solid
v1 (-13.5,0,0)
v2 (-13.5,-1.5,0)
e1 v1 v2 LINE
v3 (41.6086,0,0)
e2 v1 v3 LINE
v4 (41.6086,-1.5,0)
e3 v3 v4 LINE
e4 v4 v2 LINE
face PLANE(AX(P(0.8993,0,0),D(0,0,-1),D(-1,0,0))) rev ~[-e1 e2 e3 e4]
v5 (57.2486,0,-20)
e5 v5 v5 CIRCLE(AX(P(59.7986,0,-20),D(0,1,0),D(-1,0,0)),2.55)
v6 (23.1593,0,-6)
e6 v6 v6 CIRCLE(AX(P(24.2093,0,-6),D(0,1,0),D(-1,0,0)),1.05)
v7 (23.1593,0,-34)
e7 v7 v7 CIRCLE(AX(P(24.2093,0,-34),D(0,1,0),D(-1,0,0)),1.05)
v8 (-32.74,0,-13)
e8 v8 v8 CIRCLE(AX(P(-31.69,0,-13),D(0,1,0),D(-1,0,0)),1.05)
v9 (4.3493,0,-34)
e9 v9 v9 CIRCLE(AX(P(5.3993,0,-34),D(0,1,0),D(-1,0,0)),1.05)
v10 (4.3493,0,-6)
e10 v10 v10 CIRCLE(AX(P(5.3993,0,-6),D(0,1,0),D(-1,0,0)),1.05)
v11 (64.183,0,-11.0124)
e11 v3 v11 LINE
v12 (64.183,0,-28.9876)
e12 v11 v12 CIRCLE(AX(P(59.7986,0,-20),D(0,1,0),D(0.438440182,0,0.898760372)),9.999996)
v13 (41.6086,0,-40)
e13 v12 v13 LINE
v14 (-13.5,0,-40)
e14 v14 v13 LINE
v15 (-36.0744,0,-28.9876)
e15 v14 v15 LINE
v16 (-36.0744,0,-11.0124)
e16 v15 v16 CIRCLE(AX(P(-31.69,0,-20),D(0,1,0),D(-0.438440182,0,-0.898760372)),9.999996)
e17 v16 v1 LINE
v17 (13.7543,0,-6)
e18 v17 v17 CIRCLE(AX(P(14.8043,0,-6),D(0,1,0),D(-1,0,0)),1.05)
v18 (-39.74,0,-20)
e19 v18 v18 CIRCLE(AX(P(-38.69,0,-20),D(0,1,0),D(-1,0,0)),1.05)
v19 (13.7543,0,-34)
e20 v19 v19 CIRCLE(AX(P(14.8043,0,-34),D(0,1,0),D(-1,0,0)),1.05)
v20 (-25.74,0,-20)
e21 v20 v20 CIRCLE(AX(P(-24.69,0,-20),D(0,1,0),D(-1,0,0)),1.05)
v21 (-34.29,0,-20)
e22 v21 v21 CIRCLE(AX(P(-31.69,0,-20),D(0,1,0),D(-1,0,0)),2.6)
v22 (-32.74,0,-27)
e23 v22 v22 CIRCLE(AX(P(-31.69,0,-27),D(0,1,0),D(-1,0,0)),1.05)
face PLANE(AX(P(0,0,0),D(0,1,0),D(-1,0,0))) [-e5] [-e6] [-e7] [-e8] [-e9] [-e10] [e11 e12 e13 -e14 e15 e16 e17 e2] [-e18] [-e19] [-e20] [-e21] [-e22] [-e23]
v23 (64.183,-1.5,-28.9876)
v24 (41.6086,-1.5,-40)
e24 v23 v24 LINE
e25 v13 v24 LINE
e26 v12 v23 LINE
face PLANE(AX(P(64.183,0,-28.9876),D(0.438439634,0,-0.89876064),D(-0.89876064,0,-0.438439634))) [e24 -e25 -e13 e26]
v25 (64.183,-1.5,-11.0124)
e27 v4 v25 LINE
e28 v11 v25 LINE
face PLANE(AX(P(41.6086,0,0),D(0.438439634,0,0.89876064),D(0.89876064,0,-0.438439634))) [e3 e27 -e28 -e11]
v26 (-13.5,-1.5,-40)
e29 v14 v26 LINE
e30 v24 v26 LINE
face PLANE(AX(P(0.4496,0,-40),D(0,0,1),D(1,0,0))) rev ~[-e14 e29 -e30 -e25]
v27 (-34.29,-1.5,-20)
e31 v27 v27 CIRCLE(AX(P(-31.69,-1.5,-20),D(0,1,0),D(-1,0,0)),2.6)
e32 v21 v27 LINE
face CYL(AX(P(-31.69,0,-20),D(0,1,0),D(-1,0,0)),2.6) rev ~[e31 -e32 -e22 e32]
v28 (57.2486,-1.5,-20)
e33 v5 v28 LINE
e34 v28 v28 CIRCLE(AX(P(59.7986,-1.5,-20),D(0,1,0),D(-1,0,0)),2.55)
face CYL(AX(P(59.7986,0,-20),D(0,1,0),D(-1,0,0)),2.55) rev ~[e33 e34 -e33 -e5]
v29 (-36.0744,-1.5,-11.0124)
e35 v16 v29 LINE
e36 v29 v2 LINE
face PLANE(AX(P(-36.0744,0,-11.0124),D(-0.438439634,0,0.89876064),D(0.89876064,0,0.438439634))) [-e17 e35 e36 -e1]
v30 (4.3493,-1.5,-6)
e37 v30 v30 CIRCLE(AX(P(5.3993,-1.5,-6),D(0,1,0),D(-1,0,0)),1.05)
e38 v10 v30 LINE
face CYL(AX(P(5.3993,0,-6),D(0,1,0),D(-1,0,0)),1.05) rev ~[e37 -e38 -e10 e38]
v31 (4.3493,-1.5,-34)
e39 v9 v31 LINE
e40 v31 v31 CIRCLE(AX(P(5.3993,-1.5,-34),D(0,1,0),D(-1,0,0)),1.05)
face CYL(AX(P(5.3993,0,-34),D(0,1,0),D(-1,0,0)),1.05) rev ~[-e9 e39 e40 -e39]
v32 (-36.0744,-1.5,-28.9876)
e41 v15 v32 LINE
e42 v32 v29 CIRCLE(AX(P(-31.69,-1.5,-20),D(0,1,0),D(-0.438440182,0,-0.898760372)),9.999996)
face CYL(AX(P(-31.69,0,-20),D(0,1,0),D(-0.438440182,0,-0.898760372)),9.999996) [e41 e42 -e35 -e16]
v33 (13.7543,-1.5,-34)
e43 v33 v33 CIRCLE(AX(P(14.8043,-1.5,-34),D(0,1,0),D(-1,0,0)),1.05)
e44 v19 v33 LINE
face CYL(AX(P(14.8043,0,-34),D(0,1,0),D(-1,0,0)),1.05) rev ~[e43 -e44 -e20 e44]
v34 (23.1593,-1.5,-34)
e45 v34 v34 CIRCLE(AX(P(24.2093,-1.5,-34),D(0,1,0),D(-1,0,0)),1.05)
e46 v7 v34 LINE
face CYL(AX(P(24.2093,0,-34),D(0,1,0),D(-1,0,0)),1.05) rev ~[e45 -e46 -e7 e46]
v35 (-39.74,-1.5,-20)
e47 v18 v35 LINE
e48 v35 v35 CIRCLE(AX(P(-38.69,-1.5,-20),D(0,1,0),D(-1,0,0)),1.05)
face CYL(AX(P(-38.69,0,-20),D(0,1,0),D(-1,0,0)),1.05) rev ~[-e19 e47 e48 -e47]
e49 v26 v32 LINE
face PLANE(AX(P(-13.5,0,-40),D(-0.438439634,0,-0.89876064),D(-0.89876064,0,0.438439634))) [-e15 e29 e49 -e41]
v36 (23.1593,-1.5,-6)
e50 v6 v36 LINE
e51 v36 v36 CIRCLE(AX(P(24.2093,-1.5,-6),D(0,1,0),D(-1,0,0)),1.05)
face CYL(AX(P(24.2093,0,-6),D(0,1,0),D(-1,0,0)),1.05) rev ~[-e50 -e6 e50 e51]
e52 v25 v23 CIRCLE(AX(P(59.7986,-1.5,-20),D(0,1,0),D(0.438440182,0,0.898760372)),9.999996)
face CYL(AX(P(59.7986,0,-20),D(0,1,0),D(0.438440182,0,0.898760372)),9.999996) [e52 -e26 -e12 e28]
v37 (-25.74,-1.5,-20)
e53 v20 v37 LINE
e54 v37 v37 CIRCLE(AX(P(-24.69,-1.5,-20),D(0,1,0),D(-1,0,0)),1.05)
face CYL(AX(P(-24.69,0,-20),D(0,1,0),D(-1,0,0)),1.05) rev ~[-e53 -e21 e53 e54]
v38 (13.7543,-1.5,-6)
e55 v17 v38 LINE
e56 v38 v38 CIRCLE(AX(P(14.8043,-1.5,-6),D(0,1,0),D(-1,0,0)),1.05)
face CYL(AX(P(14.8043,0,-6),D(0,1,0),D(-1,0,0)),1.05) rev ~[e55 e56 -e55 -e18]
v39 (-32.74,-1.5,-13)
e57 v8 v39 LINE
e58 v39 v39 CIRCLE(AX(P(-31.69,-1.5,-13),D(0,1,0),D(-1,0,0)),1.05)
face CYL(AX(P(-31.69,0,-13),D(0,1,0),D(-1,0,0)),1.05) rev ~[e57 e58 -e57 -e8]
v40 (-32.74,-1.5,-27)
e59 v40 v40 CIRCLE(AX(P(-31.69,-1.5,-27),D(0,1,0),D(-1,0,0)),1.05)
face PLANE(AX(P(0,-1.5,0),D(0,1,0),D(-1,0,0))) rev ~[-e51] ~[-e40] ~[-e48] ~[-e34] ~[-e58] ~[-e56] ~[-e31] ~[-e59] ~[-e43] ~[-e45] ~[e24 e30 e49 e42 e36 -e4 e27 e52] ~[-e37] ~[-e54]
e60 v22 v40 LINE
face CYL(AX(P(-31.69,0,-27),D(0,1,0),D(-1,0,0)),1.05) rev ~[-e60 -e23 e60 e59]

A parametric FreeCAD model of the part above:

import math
import FreeCAD as App
import Part
import Sketcher

doc = App.newDocument("Part")
body = doc.addObject("PartDesign::Body", "Body")

sketch1 = doc.addObject("Sketcher::SketchObject", "Sketch")
body.addObject(sketch1)
sketch1.AttachmentSupport = (doc.XZ_Plane, [""])
sketch1.MapMode = "FlatFace"
sketch1.addGeometry(Part.LineSegment(App.Vector(-13.5, -40, 0), App.Vector(-36.1, -29, 0)), False)
sketch1.addGeometry(Part.ArcOfCircle(Part.Circle(App.Vector(-31.7, -20, 0), App.Vector(0, 0, 1), 10), math.radians(116), math.radians(244)), False)
sketch1.addGeometry(Part.LineSegment(App.Vector(-36.1, -11, 0), App.Vector(-13.5, 0, 0)), False)
sketch1.addGeometry(Part.LineSegment(App.Vector(-13.5, 0, 0), App.Vector(41.6, 0, 0)), False)
sketch1.addGeometry(Part.LineSegment(App.Vector(41.6, 0, 0), App.Vector(64.2, -11, 0)), False)
sketch1.addGeometry(Part.ArcOfCircle(Part.Circle(App.Vector(59.8, -20, 0), App.Vector(0, 0, 1), 10), math.radians(-64), math.radians(64)), False)
sketch1.addGeometry(Part.LineSegment(App.Vector(64.2, -29, 0), App.Vector(41.6, -40, 0)), False)
sketch1.addGeometry(Part.LineSegment(App.Vector(41.6, -40, 0), App.Vector(-13.5, -40, 0)), False)
sketch1.addGeometry(Part.Circle(App.Vector(5.4, -6, 0), App.Vector(0, 0, 1), 1.1), False)
sketch1.addGeometry(Part.Circle(App.Vector(24.2, -34, 0), App.Vector(0, 0, 1), 1.1), False)
sketch1.addGeometry(Part.Circle(App.Vector(14.8, -34, 0), App.Vector(0, 0, 1), 1.1), False)
sketch1.addGeometry(Part.Circle(App.Vector(5.4, -34, 0), App.Vector(0, 0, 1), 1.1), False)
sketch1.addGeometry(Part.Circle(App.Vector(24.2, -6, 0), App.Vector(0, 0, 1), 1.1), False)
sketch1.addGeometry(Part.Circle(App.Vector(14.8, -6, 0), App.Vector(0, 0, 1), 1.1), False)
sketch1.addGeometry(Part.Circle(App.Vector(-31.7, -13, 0), App.Vector(0, 0, 1), 1.1), False)
sketch1.addGeometry(Part.Circle(App.Vector(-31.7, -27, 0), App.Vector(0, 0, 1), 1.1), False)
sketch1.addGeometry(Part.Circle(App.Vector(-24.7, -20, 0), App.Vector(0, 0, 1), 1.1), False)
sketch1.addGeometry(Part.Circle(App.Vector(-31.7, -20, 0), App.Vector(0, 0, 1), 2.6), False)
sketch1.addGeometry(Part.Circle(App.Vector(-38.7, -20, 0), App.Vector(0, 0, 1), 1.1), False)
sketch1.addGeometry(Part.Circle(App.Vector(59.8, -20, 0), App.Vector(0, 0, 1), 2.5), False)
sketch1.addConstraint(Sketcher.Constraint("Tangent", 0, 2, 1, 2))
sketch1.addConstraint(Sketcher.Constraint("Tangent", 1, 1, 2, 1))
sketch1.addConstraint(Sketcher.Constraint("Coincident", 2, 2, 3, 1))
sketch1.addConstraint(Sketcher.Constraint("Coincident", 3, 2, 4, 1))
sketch1.addConstraint(Sketcher.Constraint("Tangent", 4, 2, 5, 2))
sketch1.addConstraint(Sketcher.Constraint("Tangent", 5, 1, 6, 1))
sketch1.addConstraint(Sketcher.Constraint("Coincident", 6, 2, 7, 1))
sketch1.addConstraint(Sketcher.Constraint("Coincident", 7, 2, 0, 1))
sketch1.addConstraint(Sketcher.Constraint("Horizontal", 3))
sketch1.addConstraint(Sketcher.Constraint("Horizontal", 7))
sketch1.addConstraint(Sketcher.Constraint("Coincident", 17, 3, 1, 3))
sketch1.addConstraint(Sketcher.Constraint("Coincident", 19, 3, 5, 3))
sketch1.addConstraint(Sketcher.Constraint("Equal", 1, 5))
sketch1.addConstraint(Sketcher.Constraint("Equal", 8, 9))
sketch1.addConstraint(Sketcher.Constraint("Equal", 9, 10))
sketch1.addConstraint(Sketcher.Constraint("Equal", 10, 11))
sketch1.addConstraint(Sketcher.Constraint("Equal", 11, 12))
sketch1.addConstraint(Sketcher.Constraint("Equal", 12, 13))
sketch1.addConstraint(Sketcher.Constraint("Equal", 13, 14))
sketch1.addConstraint(Sketcher.Constraint("Equal", 14, 15))
sketch1.addConstraint(Sketcher.Constraint("Equal", 15, 16))
sketch1.addConstraint(Sketcher.Constraint("Equal", 16, 18))
sketch1.addConstraint(Sketcher.Constraint("PointOnObject", 2, 2, -1))
sketch1.addConstraint(Sketcher.Constraint("Parallel", 0, 4))
sketch1.addConstraint(Sketcher.Constraint("Parallel", 2, 6))
sketch1.addConstraint(Sketcher.Constraint("Horizontal", 1, 3, 5, 3))
sketch1.addConstraint(Sketcher.Constraint("Horizontal", 9, 3, 10, 3))
sketch1.addConstraint(Sketcher.Constraint("Horizontal", 10, 3, 11, 3))
sketch1.addConstraint(Sketcher.Constraint("Horizontal", 8, 3, 12, 3))
sketch1.addConstraint(Sketcher.Constraint("Horizontal", 12, 3, 13, 3))
sketch1.addConstraint(Sketcher.Constraint("Horizontal", 5, 3, 16, 3))
sketch1.addConstraint(Sketcher.Constraint("Horizontal", 17, 3, 18, 3))
sketch1.addConstraint(Sketcher.Constraint("Horizontal", 1, 1, 4, 2))
sketch1.addConstraint(Sketcher.Constraint("Vertical", 8, 3, 11, 3))
sketch1.addConstraint(Sketcher.Constraint("Vertical", 9, 3, 12, 3))
sketch1.addConstraint(Sketcher.Constraint("Vertical", 10, 3, 13, 3))
sketch1.addConstraint(Sketcher.Constraint("Vertical", 1, 3, 14, 3))
sketch1.addConstraint(Sketcher.Constraint("Vertical", 14, 3, 15, 3))
sketch1.addConstraint(Sketcher.Constraint("Vertical", 3, 2, 6, 2))
sketch1.addConstraint(Sketcher.Constraint("Radius", 1, 10.0))
sketch1.addConstraint(Sketcher.Constraint("Diameter", 8, 2.1))
sketch1.addConstraint(Sketcher.Constraint("Diameter", 17, 5.2))
sketch1.addConstraint(Sketcher.Constraint("Diameter", 19, 5.1))
sketch1.addConstraint(Sketcher.Constraint("DistanceY", 1, 3, -1, 1, 20.0))
sketch1.addConstraint(Sketcher.Constraint("DistanceY", 8, 3, -1, 1, 6.0))
sketch1.addConstraint(Sketcher.Constraint("DistanceY", 9, 3, -1, 1, 34.0))
sketch1.addConstraint(Sketcher.Constraint("DistanceY", 14, 3, -1, 1, 13.0))
sketch1.addConstraint(Sketcher.Constraint("DistanceY", 15, 3, -1, 1, 27.0))
sketch1.addConstraint(Sketcher.Constraint("DistanceX", 1, 3, 16, 3, 7.0))
sketch1.addConstraint(Sketcher.Constraint("DistanceX", 18, 3, 1, 3, 7.0))
sketch1.addConstraint(Sketcher.Constraint("DistanceX", 2, 2, -1, 1, 13.5))
sketch1.addConstraint(Sketcher.Constraint("DistanceX", 1, 3, -1, 1, 31.69))
sketch1.addConstraint(Sketcher.Constraint("DistanceX", 8, 3, 9, 3, 18.81))
sketch1.addConstraint(Sketcher.Constraint("DistanceX", 3, 1, 3, 2, 55.1086))
sketch1.addConstraint(Sketcher.Constraint("DistanceX", 10, 3, 9, 3, 9.405))
sketch1.addConstraint(Sketcher.Constraint("DistanceX", -1, 1, 8, 3, 5.3993))
pad1 = doc.addObject("PartDesign::Pad", "Pad")
body.addObject(pad1)
pad1.Profile = sketch1
pad1.Length = 1.5

doc.recompute()
